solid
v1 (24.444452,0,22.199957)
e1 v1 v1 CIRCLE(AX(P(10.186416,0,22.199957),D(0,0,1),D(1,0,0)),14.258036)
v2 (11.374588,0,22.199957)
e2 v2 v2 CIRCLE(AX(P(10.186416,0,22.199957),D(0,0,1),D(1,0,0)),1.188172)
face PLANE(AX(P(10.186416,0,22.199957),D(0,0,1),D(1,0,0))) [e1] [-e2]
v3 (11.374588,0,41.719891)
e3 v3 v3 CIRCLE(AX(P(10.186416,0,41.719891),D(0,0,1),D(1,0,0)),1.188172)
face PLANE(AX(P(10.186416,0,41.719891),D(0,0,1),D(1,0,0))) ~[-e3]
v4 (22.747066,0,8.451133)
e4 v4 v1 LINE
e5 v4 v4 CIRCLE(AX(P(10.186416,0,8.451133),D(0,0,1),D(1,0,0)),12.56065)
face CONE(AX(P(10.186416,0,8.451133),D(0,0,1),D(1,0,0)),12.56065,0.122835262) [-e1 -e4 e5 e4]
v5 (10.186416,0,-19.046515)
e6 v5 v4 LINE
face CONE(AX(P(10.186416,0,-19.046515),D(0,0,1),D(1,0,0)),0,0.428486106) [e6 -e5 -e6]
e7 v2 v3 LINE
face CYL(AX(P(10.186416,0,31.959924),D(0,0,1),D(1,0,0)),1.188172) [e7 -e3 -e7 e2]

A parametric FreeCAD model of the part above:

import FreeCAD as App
import Part
import Sketcher

V = App.Vector

doc = App.newDocument("Part")
params = doc.addObject("Spreadsheet::Sheet", "Params")
for row, (alias, value) in enumerate([
    ("revolution_angle", "360 deg"),
], start=1):
    params.set(f"A{row}", alias)
    params.set(f"B{row}", "=" + value)
    params.setAlias(f"B{row}", alias)

body = doc.addObject("PartDesign::Body", "Body")

# Sketch on XZ plane
sketch1 = doc.addObject("Sketcher::SketchObject", "Sketch")
body.addObject(sketch1)
sketch1.AttachmentSupport = (doc.XZ_Plane, [""])
sketch1.MapMode = "FlatFace"
sketch1.addGeometry([
    Part.LineSegment(V(10.186416, -19.046515, 0), V(22.747066, 8.451133, 0)),  # 0
    Part.LineSegment(V(22.747066, 8.451133, 0), V(24.444452, 22.199957, 0)),  # 1
    Part.LineSegment(V(24.444452, 22.199957, 0), V(11.374588, 22.199957, 0)),  # 2
    Part.LineSegment(V(11.374588, 22.199957, 0), V(11.374588, 41.719891, 0)),  # 3
    Part.LineSegment(V(11.374588, 41.719891, 0), V(10.186416, 41.719891, 0)),  # 4
    Part.LineSegment(V(10.186416, 41.719891, 0), V(10.186416, -19.046515, 0)),  # 5
], False)
sketch1.addGeometry(Part.LineSegment(V(10.186416, -19.046515, 0), V(10.186416, 41.719891, 0)), True)  # axis
sketch1.addConstraint([
    Sketcher.Constraint("Coincident", 0, 2, 1, 1),
    Sketcher.Constraint("Coincident", 1, 2, 2, 1),
    Sketcher.Constraint("Coincident", 2, 2, 3, 1),
    Sketcher.Constraint("Coincident", 3, 2, 4, 1),
    Sketcher.Constraint("Coincident", 4, 2, 5, 1),
    Sketcher.Constraint("Coincident", 5, 2, 0, 1),
    Sketcher.Constraint("Horizontal", 2),
    Sketcher.Constraint("Vertical", 3),
    Sketcher.Constraint("Horizontal", 4),
    Sketcher.Constraint("Vertical", 5),
    Sketcher.Constraint("Vertical", 6),
    Sketcher.Constraint("Coincident", 6, 1, 5, 2),
    Sketcher.Constraint("Horizontal", 3, 2, 6, 2),
    Sketcher.Constraint("DistanceX", 4, 2, 4, 1, 1.188172),
    Sketcher.Constraint("DistanceX", 2, 2, 2, 1, 13.069864),
    Sketcher.Constraint("DistanceY", 3, 1, 3, 2, 19.519934),
    Sketcher.Constraint("DistanceY", 5, 2, 5, 1, 60.766406),
    Sketcher.Constraint("DistanceX", -1, 1, 1, 2, 24.444452),
    Sketcher.Constraint("DistanceY", -1, 1, 3, 2, 41.719891),
    Sketcher.Constraint("DistanceX", 2, 2, 0, 2, 11.372478),
    Sketcher.Constraint("Distance", 0, 30.230623),
])
revolution = doc.addObject("PartDesign::Revolution", "Revolution")
body.addObject(revolution)
revolution.Profile = sketch1
revolution.ReferenceAxis = (sketch1, ["Axis0"])
revolution.setExpression("Angle", "Params.revolution_angle")

doc.recompute()
